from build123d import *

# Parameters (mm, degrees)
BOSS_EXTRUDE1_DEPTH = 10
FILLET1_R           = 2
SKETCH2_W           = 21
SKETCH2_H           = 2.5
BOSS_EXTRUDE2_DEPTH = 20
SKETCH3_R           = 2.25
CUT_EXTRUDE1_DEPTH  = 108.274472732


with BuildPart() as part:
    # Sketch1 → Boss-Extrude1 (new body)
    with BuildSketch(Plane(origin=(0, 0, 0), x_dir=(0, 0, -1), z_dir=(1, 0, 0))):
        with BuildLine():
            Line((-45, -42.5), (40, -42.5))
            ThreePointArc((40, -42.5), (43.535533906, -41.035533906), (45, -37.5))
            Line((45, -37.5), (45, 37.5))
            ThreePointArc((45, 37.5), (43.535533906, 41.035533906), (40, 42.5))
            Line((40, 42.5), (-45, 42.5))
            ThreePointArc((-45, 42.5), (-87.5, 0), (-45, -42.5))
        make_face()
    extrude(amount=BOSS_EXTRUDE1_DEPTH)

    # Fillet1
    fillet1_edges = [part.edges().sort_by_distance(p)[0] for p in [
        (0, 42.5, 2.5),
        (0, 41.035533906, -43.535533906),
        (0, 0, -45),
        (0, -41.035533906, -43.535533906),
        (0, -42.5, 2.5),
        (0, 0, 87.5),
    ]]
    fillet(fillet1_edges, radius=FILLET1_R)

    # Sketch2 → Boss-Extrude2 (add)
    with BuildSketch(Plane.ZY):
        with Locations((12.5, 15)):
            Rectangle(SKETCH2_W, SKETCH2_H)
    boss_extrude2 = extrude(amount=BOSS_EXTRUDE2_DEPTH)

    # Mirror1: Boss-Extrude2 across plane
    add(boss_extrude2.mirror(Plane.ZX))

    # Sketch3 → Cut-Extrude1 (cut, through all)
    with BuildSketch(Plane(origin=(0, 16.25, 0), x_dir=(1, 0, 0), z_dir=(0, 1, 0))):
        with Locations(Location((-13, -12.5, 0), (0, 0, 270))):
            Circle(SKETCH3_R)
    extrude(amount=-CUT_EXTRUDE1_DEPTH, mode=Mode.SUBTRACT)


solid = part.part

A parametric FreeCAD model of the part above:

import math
import FreeCAD as App
import Part
import Sketcher
Q = App.Units.Quantity


def edges_at(feature, points):
    """Names of the edges that pass closest to the given points."""
    edges = feature.Shape.Edges
    near = lambda p: min(range(len(edges)), key=lambda i: edges[i].distToShape(Part.Vertex(*p))[0])
    return sorted({f"Edge{near(p) + 1}" for p in points})

doc = App.newDocument("Part")
body = doc.addObject("PartDesign::Body", "Body")

# Sketch on YZ plane
sketch1 = doc.addObject("Sketcher::SketchObject", "Sketch")
body.addObject(sketch1)
sketch1.AttachmentSupport = (doc.YZ_Plane, [""])
sketch1.MapMode = "FlatFace"
sketch1.addGeometry(Part.LineSegment(App.Vector(-42.5, 45, 0), App.Vector(-42.5, -40, 0)), False)
sketch1.addGeometry(Part.ArcOfCircle(Part.Circle(App.Vector(-37.5, -40, 0), App.Vector(0, 0, 1), 5), math.radians(180), math.radians(270)), False)
sketch1.addGeometry(Part.LineSegment(App.Vector(-37.5, -45, 0), App.Vector(37.5, -45, 0)), False)
sketch1.addGeometry(Part.ArcOfCircle(Part.Circle(App.Vector(37.5, -40, 0), App.Vector(0, 0, 1), 5), math.radians(-90), math.radians(0)), False)
sketch1.addGeometry(Part.LineSegment(App.Vector(42.5, -40, 0), App.Vector(42.5, 45, 0)), False)
sketch1.addGeometry(Part.ArcOfCircle(Part.Circle(App.Vector(0, 45, 0), App.Vector(0, 0, 1), 42.5), math.radians(0), math.radians(180)), False)
sketch1.addConstraint(Sketcher.Constraint("Tangent", 0, 2, 1, 1))
sketch1.addConstraint(Sketcher.Constraint("Tangent", 1, 2, 2, 1))
sketch1.addConstraint(Sketcher.Constraint("Tangent", 2, 2, 3, 1))
sketch1.addConstraint(Sketcher.Constraint("Tangent", 3, 2, 4, 1))
sketch1.addConstraint(Sketcher.Constraint("Tangent", 4, 2, 5, 1))
sketch1.addConstraint(Sketcher.Constraint("Tangent", 5, 2, 0, 1))
sketch1.addConstraint(Sketcher.Constraint("Vertical", 0))
sketch1.addConstraint(Sketcher.Constraint("Horizontal", 2))
sketch1.addConstraint(Sketcher.Constraint("Vertical", 4))
sketch1.addConstraint(Sketcher.Constraint("Equal", 1, 3))
sketch1.addConstraint(Sketcher.Constraint("PointOnObject", 5, 3, -2))
sketch1.addConstraint(Sketcher.Constraint("Radius", 1, Q("5 mm")))
sketch1.addConstraint(Sketcher.Constraint("Radius", 5, Q("42.5 mm")))
sketch1.addConstraint(Sketcher.Constraint("DistanceY", 0, 2, 0, 1, Q("85 mm")))
sketch1.addConstraint(Sketcher.Constraint("DistanceY", 1, 3, -1, 1, Q("40 mm")))
pad1 = doc.addObject("PartDesign::Pad", "Pad")
body.addObject(pad1)
pad1.Profile = sketch1
pad1.Length = 10
doc.recompute()

fillet = doc.addObject("PartDesign::Fillet", "Fillet")
body.addObject(fillet)
fillet.Base = (pad1, edges_at(pad1, [
    (0, 42.5, 2.5),
    (0, 41.036, -43.536),
    (0, 0, -45),
    (0, -41.036, -43.536),
    (0, -42.5, 2.5),
    (0, 0, 87.5),
]))
fillet.Radius = 2

# Sketch on YZ plane
sketch2 = doc.addObject("Sketcher::SketchObject", "Sketch001")
body.addObject(sketch2)
sketch2.AttachmentSupport = (doc.YZ_Plane, [""])
sketch2.MapMode = "FlatFace"
sketch2.addGeometry(Part.LineSegment(App.Vector(16.25, 2, 0), App.Vector(13.75, 2, 0)), False)
sketch2.addGeometry(Part.LineSegment(App.Vector(13.75, 2, 0), App.Vector(13.75, 23, 0)), False)
sketch2.addGeometry(Part.LineSegment(App.Vector(13.75, 23, 0), App.Vector(16.25, 23, 0)), False)
sketch2.addGeometry(Part.LineSegment(App.Vector(16.25, 23, 0), App.Vector(16.25, 2, 0)), False)
sketch2.addConstraint(Sketcher.Constraint("Coincident", 0, 2, 1, 1))
sketch2.addConstraint(Sketcher.Constraint("Coincident", 1, 2, 2, 1))
sketch2.addConstraint(Sketcher.Constraint("Coincident", 2, 2, 3, 1))
sketch2.addConstraint(Sketcher.Constraint("Coincident", 3, 2, 0, 1))
sketch2.addConstraint(Sketcher.Constraint("Horizontal", 0))
sketch2.addConstraint(Sketcher.Constraint("Vertical", 1))
sketch2.addConstraint(Sketcher.Constraint("Horizontal", 2))
sketch2.addConstraint(Sketcher.Constraint("Vertical", 3))
sketch2.addConstraint(Sketcher.Constraint("DistanceY", 1, 1, 1, 2, Q("21 mm")))
sketch2.addConstraint(Sketcher.Constraint("DistanceX", 0, 2, 0, 1, Q("2.5 mm")))
sketch2.addConstraint(Sketcher.Constraint("DistanceY", -1, 1, 0, 2, Q("2 mm")))
sketch2.addConstraint(Sketcher.Constraint("DistanceX", -1, 1, 0, 2, Q("13.75 mm")))
pad2 = doc.addObject("PartDesign::Pad", "Pad001")
body.addObject(pad2)
pad2.Profile = sketch2
pad2.Length = 20
pad2.Reversed = True
doc.recompute()

mirrored = doc.addObject("PartDesign::Mirrored", "Mirrored")
body.addObject(mirrored)
mirrored.Originals = [pad2]
mirrored.MirrorPlane = (doc.XZ_Plane, [""])
body.Tip = mirrored

# Sketch on XZ plane
sketch3 = doc.addObject("Sketcher::SketchObject", "Sketch002")
body.addObject(sketch3)
sketch3.AttachmentSupport = (doc.XZ_Plane, [""])
sketch3.MapMode = "FlatFace"
sketch3.AttachmentOffset = App.Placement(App.Vector(0, 0, -16.25), App.Rotation())
sketch3.addGeometry(Part.Circle(App.Vector(-13, 12.5, 0), App.Vector(0, 0, 1), 2.25), False)
sketch3.addConstraint(Sketcher.Constraint("Diameter", 0, Q("4.5 mm")))
sketch3.addConstraint(Sketcher.Constraint("DistanceX", 0, 3, -1, 1, Q("13 mm")))
sketch3.addConstraint(Sketcher.Constraint("DistanceY", -1, 1, 0, 3, Q("12.5 mm")))
pocket1 = doc.addObject("PartDesign::Pocket", "Pocket")
body.addObject(pocket1)
pocket1.Profile = sketch3
pocket1.Type = "ThroughAll"
pocket1.Reversed = True

doc.recompute()
